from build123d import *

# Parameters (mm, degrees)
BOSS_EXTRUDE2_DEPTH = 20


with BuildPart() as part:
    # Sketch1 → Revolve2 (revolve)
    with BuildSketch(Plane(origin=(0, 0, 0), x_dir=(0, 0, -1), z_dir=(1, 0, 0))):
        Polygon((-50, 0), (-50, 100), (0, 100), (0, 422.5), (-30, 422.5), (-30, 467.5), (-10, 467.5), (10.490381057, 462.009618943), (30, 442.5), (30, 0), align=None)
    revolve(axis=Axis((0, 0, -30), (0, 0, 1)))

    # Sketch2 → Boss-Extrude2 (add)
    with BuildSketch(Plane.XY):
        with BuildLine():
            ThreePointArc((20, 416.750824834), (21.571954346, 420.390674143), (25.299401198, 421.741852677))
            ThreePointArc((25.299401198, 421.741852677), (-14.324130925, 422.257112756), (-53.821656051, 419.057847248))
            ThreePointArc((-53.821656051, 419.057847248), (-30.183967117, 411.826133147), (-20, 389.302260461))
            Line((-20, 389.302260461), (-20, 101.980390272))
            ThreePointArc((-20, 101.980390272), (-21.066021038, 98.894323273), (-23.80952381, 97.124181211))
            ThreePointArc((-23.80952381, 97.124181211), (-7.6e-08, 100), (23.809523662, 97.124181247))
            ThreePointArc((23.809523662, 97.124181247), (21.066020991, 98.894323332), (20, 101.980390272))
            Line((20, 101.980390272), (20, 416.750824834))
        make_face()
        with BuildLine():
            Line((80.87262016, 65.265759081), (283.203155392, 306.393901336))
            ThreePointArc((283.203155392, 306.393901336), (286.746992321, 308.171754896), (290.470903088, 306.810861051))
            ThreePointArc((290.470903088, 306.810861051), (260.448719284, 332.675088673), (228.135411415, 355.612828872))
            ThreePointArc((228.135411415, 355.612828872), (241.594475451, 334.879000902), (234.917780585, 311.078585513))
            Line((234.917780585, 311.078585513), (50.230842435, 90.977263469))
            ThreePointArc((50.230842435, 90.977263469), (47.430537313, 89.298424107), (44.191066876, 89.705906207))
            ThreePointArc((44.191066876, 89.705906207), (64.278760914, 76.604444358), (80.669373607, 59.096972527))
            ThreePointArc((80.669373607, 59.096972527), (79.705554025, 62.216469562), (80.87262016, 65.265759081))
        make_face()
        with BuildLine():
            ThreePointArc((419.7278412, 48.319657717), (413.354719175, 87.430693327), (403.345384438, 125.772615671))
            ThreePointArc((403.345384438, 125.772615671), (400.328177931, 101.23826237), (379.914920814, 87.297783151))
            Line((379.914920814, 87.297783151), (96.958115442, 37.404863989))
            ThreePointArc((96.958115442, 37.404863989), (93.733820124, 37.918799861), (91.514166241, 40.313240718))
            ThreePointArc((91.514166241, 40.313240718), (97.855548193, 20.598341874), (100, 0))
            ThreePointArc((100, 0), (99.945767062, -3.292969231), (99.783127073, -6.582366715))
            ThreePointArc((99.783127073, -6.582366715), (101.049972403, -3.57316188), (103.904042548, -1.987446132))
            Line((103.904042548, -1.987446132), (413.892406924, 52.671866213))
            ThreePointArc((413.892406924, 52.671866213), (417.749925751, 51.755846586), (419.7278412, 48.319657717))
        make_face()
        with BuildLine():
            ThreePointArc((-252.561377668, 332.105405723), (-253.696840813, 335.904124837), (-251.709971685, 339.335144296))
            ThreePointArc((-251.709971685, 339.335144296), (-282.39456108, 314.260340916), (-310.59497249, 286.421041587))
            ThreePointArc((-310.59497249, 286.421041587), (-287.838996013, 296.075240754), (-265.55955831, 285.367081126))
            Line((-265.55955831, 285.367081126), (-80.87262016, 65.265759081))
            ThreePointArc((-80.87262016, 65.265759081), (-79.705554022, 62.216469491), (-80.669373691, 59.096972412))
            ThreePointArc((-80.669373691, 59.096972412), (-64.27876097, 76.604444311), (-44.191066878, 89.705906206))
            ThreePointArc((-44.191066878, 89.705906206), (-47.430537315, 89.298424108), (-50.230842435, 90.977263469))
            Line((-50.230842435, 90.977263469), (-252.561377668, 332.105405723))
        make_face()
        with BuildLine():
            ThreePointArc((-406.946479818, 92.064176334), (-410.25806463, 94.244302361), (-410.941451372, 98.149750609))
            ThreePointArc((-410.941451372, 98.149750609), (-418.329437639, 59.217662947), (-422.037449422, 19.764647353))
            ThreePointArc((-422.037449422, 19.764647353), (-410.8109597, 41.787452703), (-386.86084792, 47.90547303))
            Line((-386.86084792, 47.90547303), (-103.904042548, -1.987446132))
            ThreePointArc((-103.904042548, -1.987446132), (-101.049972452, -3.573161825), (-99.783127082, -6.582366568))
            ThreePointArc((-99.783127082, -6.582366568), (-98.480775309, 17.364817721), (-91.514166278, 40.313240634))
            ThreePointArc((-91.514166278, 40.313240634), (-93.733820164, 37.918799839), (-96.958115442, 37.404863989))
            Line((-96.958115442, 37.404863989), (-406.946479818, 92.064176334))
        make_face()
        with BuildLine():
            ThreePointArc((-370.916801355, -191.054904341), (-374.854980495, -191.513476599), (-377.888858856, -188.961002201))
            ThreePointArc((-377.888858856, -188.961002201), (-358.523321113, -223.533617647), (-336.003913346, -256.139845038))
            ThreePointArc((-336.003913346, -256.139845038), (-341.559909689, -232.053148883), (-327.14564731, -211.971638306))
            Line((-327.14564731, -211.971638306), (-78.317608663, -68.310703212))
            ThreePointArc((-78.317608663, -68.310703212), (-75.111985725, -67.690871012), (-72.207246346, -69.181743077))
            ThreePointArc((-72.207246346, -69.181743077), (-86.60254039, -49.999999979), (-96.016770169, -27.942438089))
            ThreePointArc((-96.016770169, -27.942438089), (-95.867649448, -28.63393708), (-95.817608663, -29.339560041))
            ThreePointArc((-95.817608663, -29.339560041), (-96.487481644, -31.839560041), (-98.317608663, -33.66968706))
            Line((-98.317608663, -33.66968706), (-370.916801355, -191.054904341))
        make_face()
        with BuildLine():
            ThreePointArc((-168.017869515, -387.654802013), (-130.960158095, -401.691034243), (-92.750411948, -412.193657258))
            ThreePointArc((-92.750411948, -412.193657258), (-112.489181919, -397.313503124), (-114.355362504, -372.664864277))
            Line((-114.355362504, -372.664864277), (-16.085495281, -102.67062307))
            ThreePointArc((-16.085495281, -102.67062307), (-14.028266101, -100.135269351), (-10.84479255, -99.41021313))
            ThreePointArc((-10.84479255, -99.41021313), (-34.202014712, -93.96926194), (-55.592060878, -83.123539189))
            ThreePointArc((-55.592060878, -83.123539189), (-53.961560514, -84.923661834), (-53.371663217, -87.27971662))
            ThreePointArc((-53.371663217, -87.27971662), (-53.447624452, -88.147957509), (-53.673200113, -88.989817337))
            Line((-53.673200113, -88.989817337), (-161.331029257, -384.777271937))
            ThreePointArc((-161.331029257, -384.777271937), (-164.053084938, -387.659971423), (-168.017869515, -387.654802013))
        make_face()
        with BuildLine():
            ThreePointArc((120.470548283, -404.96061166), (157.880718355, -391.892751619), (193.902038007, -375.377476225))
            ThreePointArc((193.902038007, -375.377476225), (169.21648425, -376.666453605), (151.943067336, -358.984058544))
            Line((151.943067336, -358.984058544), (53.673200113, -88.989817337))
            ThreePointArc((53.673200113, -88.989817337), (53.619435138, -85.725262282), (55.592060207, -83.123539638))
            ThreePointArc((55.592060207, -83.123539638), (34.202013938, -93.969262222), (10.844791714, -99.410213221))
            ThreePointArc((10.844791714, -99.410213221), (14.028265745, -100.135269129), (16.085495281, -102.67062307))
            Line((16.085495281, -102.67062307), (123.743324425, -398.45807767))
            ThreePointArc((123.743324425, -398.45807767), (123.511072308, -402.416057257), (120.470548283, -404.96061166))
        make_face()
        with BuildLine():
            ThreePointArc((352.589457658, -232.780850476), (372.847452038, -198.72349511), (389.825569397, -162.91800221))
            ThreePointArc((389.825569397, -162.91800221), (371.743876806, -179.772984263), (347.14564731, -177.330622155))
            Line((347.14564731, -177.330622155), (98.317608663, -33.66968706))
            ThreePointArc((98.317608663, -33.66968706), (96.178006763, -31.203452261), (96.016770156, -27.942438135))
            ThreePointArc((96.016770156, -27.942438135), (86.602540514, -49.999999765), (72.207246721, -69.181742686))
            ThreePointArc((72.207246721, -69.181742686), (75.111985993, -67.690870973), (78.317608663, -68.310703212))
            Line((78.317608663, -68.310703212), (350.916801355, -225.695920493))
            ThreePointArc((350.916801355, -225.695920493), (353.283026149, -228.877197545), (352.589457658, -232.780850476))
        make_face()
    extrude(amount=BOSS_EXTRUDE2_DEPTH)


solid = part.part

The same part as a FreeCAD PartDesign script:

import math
import FreeCAD as App
import Part
import Sketcher
from FreeCAD import Vector
Q = App.Units.Quantity


def add_polygon(sketch, points):
    """Adds a closed chain of lines whose ends are joined by coincident constraints."""
    first, n = sketch.GeometryCount, len(points)
    for a, b in zip(points, points[1:] + points[:1]):
        sketch.addGeometry(Part.LineSegment(App.Vector(*a, 0), App.Vector(*b, 0)), False)
    for i in range(n):
        sketch.addConstraint(Sketcher.Constraint("Coincident", first + i, 2, first + (i + 1) % n, 1))

doc = App.newDocument("Part")
body = doc.addObject("PartDesign::Body", "Body")

sketch1 = doc.addObject("Sketcher::SketchObject", "Sketch")
body.addObject(sketch1)
sketch1.AttachmentSupport = (doc.YZ_Plane, [""])
sketch1.MapMode = "FlatFace"
add_polygon(sketch1, [(100, 50), (0, 50), (0, -30), (442, -30), (462, -10), (468, 10), (468, 30), (422, 30), (422, 0), (100, 0)])
sketch1.addConstraint(Sketcher.Constraint("Horizontal", 0))
sketch1.addConstraint(Sketcher.Constraint("Vertical", 1))
sketch1.addConstraint(Sketcher.Constraint("Horizontal", 2))
sketch1.addConstraint(Sketcher.Constraint("Vertical", 5))
sketch1.addConstraint(Sketcher.Constraint("Horizontal", 6))
sketch1.addConstraint(Sketcher.Constraint("Vertical", 7))
sketch1.addConstraint(Sketcher.Constraint("Horizontal", 8))
sketch1.addConstraint(Sketcher.Constraint("Vertical", 9))
sketch1.addConstraint(Sketcher.Constraint("PointOnObject", 0, 2, -2))
sketch1.addConstraint(Sketcher.Constraint("PointOnObject", 7, 2, -1))
sketch1.addConstraint(Sketcher.Constraint("DistanceX", 0, 2, 0, 1, Q("100 mm")))
sketch1.addConstraint(Sketcher.Constraint("DistanceX", 6, 2, 6, 1, Q("45 mm")))
sketch1.addConstraint(Sketcher.Constraint("DistanceY", 1, 2, 1, 1, Q("80 mm")))
sketch1.addConstraint(Sketcher.Constraint("DistanceY", 5, 1, 5, 2, Q("20 mm")))
sketch1.addConstraint(Sketcher.Constraint("DistanceY", 7, 2, 7, 1, Q("30 mm")))
sketch1.addConstraint(Sketcher.Constraint("DistanceY", 9, 1, 9, 2, Q("50 mm")))
sketch1.addConstraint(Sketcher.Constraint("Angle", 3, Q("45 deg")))
sketch1.addConstraint(Sketcher.Constraint("Angle", 4, Q("75 deg")))
sketch1.addConstraint(Sketcher.Constraint("DistanceX", 2, 1, 2, 2, Q("442.5 mm")))
sketch1.addConstraint(Sketcher.Constraint("DistanceX", 8, 2, 8, 1, Q("322.5 mm")))
revolution = doc.addObject("PartDesign::Revolution", "Revolution")
body.addObject(revolution)
revolution.Profile = sketch1
revolution.ReferenceAxis = (sketch1, ["V_Axis"])
revolution.Angle = 360

sketch2 = doc.addObject("Sketcher::SketchObject", "Sketch001")
body.addObject(sketch2)
sketch2.AttachmentSupport = (doc.XY_Plane, [""])
sketch2.MapMode = "FlatFace"
sketch2.addGeometry(Part.ArcOfCircle(Part.Circle(Vector(25, 416.8, 0), Vector(0, 0, 1), 5), math.radians(87), math.radians(180)), False)
sketch2.addGeometry(Part.ArcOfCircle(Part.Circle(Vector(0, 0, 0), Vector(0, 0, 1), 422.5), math.radians(86.57), math.radians(97.32)), False)
sketch2.addGeometry(Part.ArcOfCircle(Part.Circle(Vector(-50, 389.3, 0), Vector(0, 0, 1), 30), math.radians(0), math.radians(97)), False)
sketch2.addGeometry(Part.LineSegment(Vector(-20, 389.3, 0), Vector(-20, 102, 0)), False)
sketch2.addGeometry(Part.ArcOfCircle(Part.Circle(Vector(-25, 102, 0), Vector(0, 0, 1), 5), math.radians(-76), math.radians(0)), False)
sketch2.addGeometry(Part.ArcOfCircle(Part.Circle(Vector(0, 0, 0), Vector(0, 0, 1), 100), math.radians(76), math.radians(104)), False)
sketch2.addGeometry(Part.ArcOfCircle(Part.Circle(Vector(25, 102, 0), Vector(0, 0, 1), 5), math.radians(180), math.radians(256)), False)
sketch2.addGeometry(Part.LineSegment(Vector(20, 102, 0), Vector(20, 416.8, 0)), False)
sketch2.addGeometry(Part.LineSegment(Vector(80.9, 65.3, 0), Vector(283.2, 306.4, 0)), False)
sketch2.addGeometry(Part.ArcOfCircle(Part.Circle(Vector(287, 303.2, 0), Vector(0, 0, 1), 5), math.radians(47), math.radians(140)), False)
sketch2.addGeometry(Part.ArcOfCircle(Part.Circle(Vector(0, 0, 0), Vector(0, 0, 1), 422.5), math.radians(46.57), math.radians(57.32)), False)
sketch2.addGeometry(Part.ArcOfCircle(Part.Circle(Vector(211.9, 330.4, 0), Vector(0, 0, 1), 30), math.radians(-40), math.radians(57)), False)
sketch2.addGeometry(Part.LineSegment(Vector(234.9, 311.1, 0), Vector(50.2, 91, 0)), False)
sketch2.addGeometry(Part.ArcOfCircle(Part.Circle(Vector(46.4, 94.2, 0), Vector(0, 0, 1), 5), math.radians(-116), math.radians(-40)), False)
sketch2.addGeometry(Part.ArcOfCircle(Part.Circle(Vector(0, 0, 0), Vector(0, 0, 1), 100), math.radians(36), math.radians(64)), False)
sketch2.addGeometry(Part.ArcOfCircle(Part.Circle(Vector(84.7, 62.1, 0), Vector(0, 0, 1), 5), math.radians(140), math.radians(216)), False)
sketch2.addGeometry(Part.ArcOfCircle(Part.Circle(Vector(0, 0, 0), Vector(0, 0, 1), 422.5), math.radians(6.57), math.radians(17.32)), False)
sketch2.addGeometry(Part.ArcOfCircle(Part.Circle(Vector(374.7, 116.8, 0), Vector(0, 0, 1), 30), math.radians(-80), math.radians(17)), False)
sketch2.addGeometry(Part.LineSegment(Vector(379.9, 87.3, 0), Vector(97, 37.4, 0)), False)
sketch2.addGeometry(Part.ArcOfCircle(Part.Circle(Vector(96.1, 42.3, 0), Vector(0, 0, 1), 5), math.radians(-156), math.radians(-80)), False)
sketch2.addGeometry(Part.ArcOfCircle(Part.Circle(Vector(0, 0, 0), Vector(0, 0, 1), 100), math.radians(0), math.radians(24)), False)
sketch2.addGeometry(Part.ArcOfCircle(Part.Circle(Vector(0, 0, 0), Vector(0, 0, 1), 100), math.radians(-3.77), math.radians(0)), False)
sketch2.addGeometry(Part.ArcOfCircle(Part.Circle(Vector(104.8, -6.9, 0), Vector(0, 0, 1), 5), math.radians(100), math.radians(176)), False)
sketch2.addGeometry(Part.LineSegment(Vector(103.9, -2, 0), Vector(413.9, 52.7, 0)), False)
sketch2.addGeometry(Part.ArcOfCircle(Part.Circle(Vector(414.8, 47.7, 0), Vector(0, 0, 1), 5), math.radians(7), math.radians(100)), False)
sketch2.addGeometry(Part.ArcOfCircle(Part.Circle(Vector(-248.7, 335.3, 0), Vector(0, 0, 1), 5), math.radians(127), math.radians(220)), False)
sketch2.addGeometry(Part.ArcOfCircle(Part.Circle(Vector(0, 0, 0), Vector(0, 0, 1), 422.5), math.radians(126.57), math.radians(137.32)), False)
sketch2.addGeometry(Part.ArcOfCircle(Part.Circle(Vector(-288.5, 266.1, 0), Vector(0, 0, 1), 30), math.radians(40), math.radians(137)), False)
sketch2.addGeometry(Part.LineSegment(Vector(-265.6, 285.4, 0), Vector(-80.9, 65.3, 0)), False)
sketch2.addGeometry(Part.ArcOfCircle(Part.Circle(Vector(-84.7, 62.1, 0), Vector(0, 0, 1), 5), math.radians(-36), math.radians(40)), False)
sketch2.addGeometry(Part.ArcOfCircle(Part.Circle(Vector(0, 0, 0), Vector(0, 0, 1), 100), math.radians(116), math.radians(144)), False)
sketch2.addGeometry(Part.ArcOfCircle(Part.Circle(Vector(-46.4, 94.2, 0), Vector(0, 0, 1), 5), math.radians(-140), math.radians(-64)), False)
sketch2.addGeometry(Part.LineSegment(Vector(-50.2, 91, 0), Vector(-252.6, 332.1, 0)), False)
sketch2.addGeometry(Part.ArcOfCircle(Part.Circle(Vector(-406.1, 97, 0), Vector(0, 0, 1), 5), math.radians(167), math.radians(260)), False)
sketch2.addGeometry(Part.ArcOfCircle(Part.Circle(Vector(0, 0, 0), Vector(0, 0, 1), 422.5), math.radians(166.57), math.radians(177.32)), False)
sketch2.addGeometry(Part.ArcOfCircle(Part.Circle(Vector(-392.1, 18.4, 0), Vector(0, 0, 1), 30), math.radians(80), math.radians(177)), False)
sketch2.addGeometry(Part.LineSegment(Vector(-386.9, 47.9, 0), Vector(-103.9, -2, 0)), False)
sketch2.addGeometry(Part.ArcOfCircle(Part.Circle(Vector(-104.8, -6.9, 0), Vector(0, 0, 1), 5), math.radians(4), math.radians(80)), False)
sketch2.addGeometry(Part.ArcOfCircle(Part.Circle(Vector(0, 0, 0), Vector(0, 0, 1), 100), math.radians(156), math.radians(184)), False)
sketch2.addGeometry(Part.ArcOfCircle(Part.Circle(Vector(-96.1, 42.3, 0), Vector(0, 0, 1), 5), math.radians(-100), math.radians(-24)), False)
sketch2.addGeometry(Part.LineSegment(Vector(-97, 37.4, 0), Vector(-406.9, 92.1, 0)), False)
sketch2.addGeometry(Part.ArcOfCircle(Part.Circle(Vector(-373.4, -186.7, 0), Vector(0, 0, 1), 5), math.radians(-153), math.radians(-60)), False)
sketch2.addGeometry(Part.ArcOfCircle(Part.Circle(Vector(0, 0, 0), Vector(0, 0, 1), 422.5), math.radians(-153.43), math.radians(-142.68)), False)
sketch2.addGeometry(Part.ArcOfCircle(Part.Circle(Vector(-312.1, -238, 0), Vector(0, 0, 1), 30), math.radians(120), math.radians(217)), False)
sketch2.addGeometry(Part.LineSegment(Vector(-327.1, -212, 0), Vector(-78.3, -68.3, 0)), False)
sketch2.addGeometry(Part.ArcOfCircle(Part.Circle(Vector(-75.8, -72.6, 0), Vector(0, 0, 1), 5), math.radians(44), math.radians(120)), False)
sketch2.addGeometry(Part.ArcOfCircle(Part.Circle(Vector(0, 0, 0), Vector(0, 0, 1), 100), math.radians(-164), math.radians(-136)), False)
sketch2.addGeometry(Part.ArcOfCircle(Part.Circle(Vector(-100.8, -29.3, 0), Vector(0, 0, 1), 5), math.radians(0), math.radians(16.23)), False)
sketch2.addGeometry(Part.ArcOfCircle(Part.Circle(Vector(-100.8, -29.3, 0), Vector(0, 0, 1), 5), math.radians(-60), math.radians(0)), False)
sketch2.addGeometry(Part.LineSegment(Vector(-98.3, -33.7, 0), Vector(-370.9, -191.1, 0)), False)
sketch2.addGeometry(Part.ArcOfCircle(Part.Circle(Vector(0, 0, 0), Vector(0, 0, 1), 422.5), math.radians(-113.43), math.radians(-102.68)), False)
sketch2.addGeometry(Part.ArcOfCircle(Part.Circle(Vector(-86.2, -382.9, 0), Vector(0, 0, 1), 30), math.radians(160), math.radians(257)), False)
sketch2.addGeometry(Part.LineSegment(Vector(-114.4, -372.7, 0), Vector(-16.1, -102.7, 0)), False)
sketch2.addGeometry(Part.ArcOfCircle(Part.Circle(Vector(-11.4, -104.4, 0), Vector(0, 0, 1), 5), math.radians(84), math.radians(160)), False)
sketch2.addGeometry(Part.ArcOfCircle(Part.Circle(Vector(0, 0, 0), Vector(0, 0, 1), 100), math.radians(-124), math.radians(-96)), False)
sketch2.addGeometry(Part.ArcOfCircle(Part.Circle(Vector(-58.4, -87.3, 0), Vector(0, 0, 1), 5), math.radians(0), math.radians(56)), False)
sketch2.addGeometry(Part.ArcOfCircle(Part.Circle(Vector(-58.4, -87.3, 0), Vector(0, 0, 1), 5), math.radians(-20), math.radians(0)), False)
sketch2.addGeometry(Part.LineSegment(Vector(-53.7, -89, 0), Vector(-161.3, -384.8, 0)), False)
sketch2.addGeometry(Part.ArcOfCircle(Part.Circle(Vector(-166, -383.1, 0), Vector(0, 0, 1), 5), math.radians(-113), math.radians(-20)), False)
sketch2.addGeometry(Part.ArcOfCircle(Part.Circle(Vector(0, 0, 0), Vector(0, 0, 1), 422.5), math.radians(-73.43), math.radians(-62.68)), False)
sketch2.addGeometry(Part.ArcOfCircle(Part.Circle(Vector(180.1, -348.7, 0), Vector(0, 0, 1), 30), math.radians(-160), math.radians(-63)), False)
sketch2.addGeometry(Part.LineSegment(Vector(151.9, -359, 0), Vector(53.7, -89, 0)), False)
sketch2.addGeometry(Part.ArcOfCircle(Part.Circle(Vector(58.4, -87.3, 0), Vector(0, 0, 1), 5), math.radians(124), math.radians(200)), False)
sketch2.addGeometry(Part.ArcOfCircle(Part.Circle(Vector(0, 0, 0), Vector(0, 0, 1), 100), math.radians(-84), math.radians(-56)), False)
sketch2.addGeometry(Part.ArcOfCircle(Part.Circle(Vector(11.4, -104.4, 0), Vector(0, 0, 1), 5), math.radians(20), math.radians(96)), False)
sketch2.addGeometry(Part.LineSegment(Vector(16.1, -102.7, 0), Vector(123.7, -398.5, 0)), False)
sketch2.addGeometry(Part.ArcOfCircle(Part.Circle(Vector(119, -400.2, 0), Vector(0, 0, 1), 5), math.radians(-73), math.radians(20)), False)
sketch2.addGeometry(Part.ArcOfCircle(Part.Circle(Vector(0, 0, 0), Vector(0, 0, 1), 422.5), math.radians(-33.43), math.radians(-22.68)), False)
sketch2.addGeometry(Part.ArcOfCircle(Part.Circle(Vector(362.1, -151.3, 0), Vector(0, 0, 1), 30), math.radians(-120), math.radians(-23)), False)
sketch2.addGeometry(Part.LineSegment(Vector(347.1, -177.3, 0), Vector(98.3, -33.7, 0)), False)
sketch2.addGeometry(Part.ArcOfCircle(Part.Circle(Vector(100.8, -29.3, 0), Vector(0, 0, 1), 5), math.radians(164), math.radians(240)), False)
sketch2.addGeometry(Part.ArcOfCircle(Part.Circle(Vector(0, 0, 0), Vector(0, 0, 1), 100), math.radians(-44), math.radians(-16)), False)
sketch2.addGeometry(Part.ArcOfCircle(Part.Circle(Vector(75.8, -72.6, 0), Vector(0, 0, 1), 5), math.radians(60), math.radians(136)), False)
sketch2.addGeometry(Part.LineSegment(Vector(78.3, -68.3, 0), Vector(350.9, -225.7, 0)), False)
sketch2.addGeometry(Part.ArcOfCircle(Part.Circle(Vector(348.4, -230, 0), Vector(0, 0, 1), 5), math.radians(-33), math.radians(60)), False)
sketch2.addConstraint(Sketcher.Constraint("Tangent", 0, 1, 1, 1))
sketch2.addConstraint(Sketcher.Constraint("Tangent", 1, 2, 2, 2))
sketch2.addConstraint(Sketcher.Constraint("Tangent", 2, 1, 3, 1))
sketch2.addConstraint(Sketcher.Constraint("Tangent", 3, 2, 4, 2))
sketch2.addConstraint(Sketcher.Constraint("Tangent", 4, 1, 5, 2))
sketch2.addConstraint(Sketcher.Constraint("Tangent", 5, 1, 6, 2))
sketch2.addConstraint(Sketcher.Constraint("Tangent", 6, 1, 7, 1))
sketch2.addConstraint(Sketcher.Constraint("Tangent", 7, 2, 0, 2))
sketch2.addConstraint(Sketcher.Constraint("Tangent", 8, 2, 9, 2))
sketch2.addConstraint(Sketcher.Constraint("Tangent", 9, 1, 10, 1))
sketch2.addConstraint(Sketcher.Constraint("Tangent", 10, 2, 11, 2))
sketch2.addConstraint(Sketcher.Constraint("Tangent", 11, 1, 12, 1))
sketch2.addConstraint(Sketcher.Constraint("Tangent", 12, 2, 13, 2))
sketch2.addConstraint(Sketcher.Constraint("Tangent", 13, 1, 14, 2))
sketch2.addConstraint(Sketcher.Constraint("Tangent", 14, 1, 15, 2))
sketch2.addConstraint(Sketcher.Constraint("Tangent", 15, 1, 8, 1))
sketch2.addConstraint(Sketcher.Constraint("Tangent", 16, 2, 17, 2))
sketch2.addConstraint(Sketcher.Constraint("Tangent", 17, 1, 18, 1))
sketch2.addConstraint(Sketcher.Constraint("Tangent", 18, 2, 19, 2))
sketch2.addConstraint(Sketcher.Constraint("Tangent", 19, 1, 20, 2))
sketch2.addConstraint(Sketcher.Constraint("Tangent", 20, 1, 21, 2))
sketch2.addConstraint(Sketcher.Constraint("Tangent", 21, 1, 22, 2))
sketch2.addConstraint(Sketcher.Constraint("Tangent", 22, 1, 23, 1))
sketch2.addConstraint(Sketcher.Constraint("Tangent", 23, 2, 24, 2))
sketch2.addConstraint(Sketcher.Constraint("Tangent", 24, 1, 16, 1))
sketch2.addConstraint(Sketcher.Constraint("Tangent", 25, 1, 26, 1))
sketch2.addConstraint(Sketcher.Constraint("Tangent", 26, 2, 27, 2))
sketch2.addConstraint(Sketcher.Constraint("Tangent", 27, 1, 28, 1))
sketch2.addConstraint(Sketcher.Constraint("Tangent", 28, 2, 29, 2))
sketch2.addConstraint(Sketcher.Constraint("Tangent", 29, 1, 30, 2))
sketch2.addConstraint(Sketcher.Constraint("Tangent", 30, 1, 31, 2))
sketch2.addConstraint(Sketcher.Constraint("Tangent", 31, 1, 32, 1))
sketch2.addConstraint(Sketcher.Constraint("Tangent", 32, 2, 25, 2))
sketch2.addConstraint(Sketcher.Constraint("Tangent", 33, 1, 34, 1))
sketch2.addConstraint(Sketcher.Constraint("Tangent", 34, 2, 35, 2))
sketch2.addConstraint(Sketcher.Constraint("Tangent", 35, 1, 36, 1))
sketch2.addConstraint(Sketcher.Constraint("Tangent", 36, 2, 37, 2))
sketch2.addConstraint(Sketcher.Constraint("Tangent", 37, 1, 38, 2))
sketch2.addConstraint(Sketcher.Constraint("Tangent", 38, 1, 39, 2))
sketch2.addConstraint(Sketcher.Constraint("Tangent", 39, 1, 40, 1))
sketch2.addConstraint(Sketcher.Constraint("Tangent", 40, 2, 33, 2))
sketch2.addConstraint(Sketcher.Constraint("Tangent", 41, 1, 42, 1))
sketch2.addConstraint(Sketcher.Constraint("Tangent", 42, 2, 43, 2))
sketch2.addConstraint(Sketcher.Constraint("Tangent", 43, 1, 44, 1))
sketch2.addConstraint(Sketcher.Constraint("Tangent", 44, 2, 45, 2))
sketch2.addConstraint(Sketcher.Constraint("Tangent", 45, 1, 46, 2))
sketch2.addConstraint(Sketcher.Constraint("Tangent", 46, 1, 47, 2))
sketch2.addConstraint(Sketcher.Constraint("Tangent", 47, 1, 48, 2))
sketch2.addConstraint(Sketcher.Constraint("Tangent", 48, 1, 49, 1))
sketch2.addConstraint(Sketcher.Constraint("Tangent", 49, 2, 41, 2))
sketch2.addConstraint(Sketcher.Constraint("Tangent", 50, 2, 51, 2))
sketch2.addConstraint(Sketcher.Constraint("Tangent", 51, 1, 52, 1))
sketch2.addConstraint(Sketcher.Constraint("Tangent", 52, 2, 53, 2))
sketch2.addConstraint(Sketcher.Constraint("Tangent", 53, 1, 54, 2))
sketch2.addConstraint(Sketcher.Constraint("Tangent", 54, 1, 55, 2))
sketch2.addConstraint(Sketcher.Constraint("Tangent", 55, 1, 56, 2))
sketch2.addConstraint(Sketcher.Constraint("Tangent", 56, 1, 57, 1))
sketch2.addConstraint(Sketcher.Constraint("Tangent", 57, 2, 58, 2))
sketch2.addConstraint(Sketcher.Constraint("Tangent", 58, 1, 50, 1))
sketch2.addConstraint(Sketcher.Constraint("Tangent", 59, 2, 60, 2))
sketch2.addConstraint(Sketcher.Constraint("Tangent", 60, 1, 61, 1))
sketch2.addConstraint(Sketcher.Constraint("Tangent", 61, 2, 62, 2))
sketch2.addConstraint(Sketcher.Constraint("Tangent", 62, 1, 63, 2))
sketch2.addConstraint(Sketcher.Constraint("Tangent", 63, 1, 64, 2))
sketch2.addConstraint(Sketcher.Constraint("Tangent", 64, 1, 65, 1))
sketch2.addConstraint(Sketcher.Constraint("Tangent", 65, 2, 66, 2))
sketch2.addConstraint(Sketcher.Constraint("Tangent", 66, 1, 59, 1))
sketch2.addConstraint(Sketcher.Constraint("Tangent", 67, 2, 68, 2))
sketch2.addConstraint(Sketcher.Constraint("Tangent", 68, 1, 69, 1))
sketch2.addConstraint(Sketcher.Constraint("Tangent", 69, 2, 70, 2))
sketch2.addConstraint(Sketcher.Constraint("Tangent", 70, 1, 71, 2))
sketch2.addConstraint(Sketcher.Constraint("Tangent", 71, 1, 72, 2))
sketch2.addConstraint(Sketcher.Constraint("Tangent", 72, 1, 73, 1))
sketch2.addConstraint(Sketcher.Constraint("Tangent", 73, 2, 74, 2))
sketch2.addConstraint(Sketcher.Constraint("Tangent", 74, 1, 67, 1))
sketch2.addConstraint(Sketcher.Constraint("Vertical", 3))
sketch2.addConstraint(Sketcher.Constraint("Vertical", 7))
sketch2.addConstraint(Sketcher.Constraint("Coincident", 1, 3, -1, 1))
sketch2.addConstraint(Sketcher.Constraint("Coincident", 5, 3, -1, 1))
sketch2.addConstraint(Sketcher.Constraint("Coincident", 10, 3, -1, 1))
sketch2.addConstraint(Sketcher.Constraint("Coincident", 14, 3, -1, 1))
sketch2.addConstraint(Sketcher.Constraint("Coincident", 16, 3, -1, 1))
sketch2.addConstraint(Sketcher.Constraint("Coincident", 20, 3, -1, 1))
sketch2.addConstraint(Sketcher.Constraint("Coincident", 26, 3, -1, 1))
sketch2.addConstraint(Sketcher.Constraint("Coincident", 30, 3, -1, 1))
sketch2.addConstraint(Sketcher.Constraint("Coincident", 34, 3, -1, 1))
sketch2.addConstraint(Sketcher.Constraint("Coincident", 38, 3, -1, 1))
sketch2.addConstraint(Sketcher.Constraint("Coincident", 42, 3, -1, 1))
sketch2.addConstraint(Sketcher.Constraint("Coincident", 46, 3, -1, 1))
sketch2.addConstraint(Sketcher.Constraint("Coincident", 50, 3, -1, 1))
sketch2.addConstraint(Sketcher.Constraint("Coincident", 54, 3, -1, 1))
sketch2.addConstraint(Sketcher.Constraint("Coincident", 59, 3, -1, 1))
sketch2.addConstraint(Sketcher.Constraint("Coincident", 63, 3, -1, 1))
sketch2.addConstraint(Sketcher.Constraint("Coincident", 67, 3, -1, 1))
sketch2.addConstraint(Sketcher.Constraint("Coincident", 71, 3, -1, 1))
sketch2.addConstraint(Sketcher.Constraint("Equal", 0, 4))
sketch2.addConstraint(Sketcher.Constraint("Equal", 4, 6))
sketch2.addConstraint(Sketcher.Constraint("Equal", 6, 9))
sketch2.addConstraint(Sketcher.Constraint("Equal", 1, 10))
sketch2.addConstraint(Sketcher.Constraint("Equal", 2, 11))
sketch2.addConstraint(Sketcher.Constraint("Equal", 9, 13))
sketch2.addConstraint(Sketcher.Constraint("Equal", 5, 14))
sketch2.addConstraint(Sketcher.Constraint("Equal", 13, 15))
sketch2.addConstraint(Sketcher.Constraint("Equal", 10, 16))
sketch2.addConstraint(Sketcher.Constraint("Equal", 11, 17))
sketch2.addConstraint(Sketcher.Constraint("Equal", 15, 19))
sketch2.addConstraint(Sketcher.Constraint("Equal", 14, 20))
sketch2.addConstraint(Sketcher.Constraint("Equal", 20, 21))
sketch2.addConstraint(Sketcher.Constraint("Equal", 19, 22))
sketch2.addConstraint(Sketcher.Constraint("Equal", 22, 24))
sketch2.addConstraint(Sketcher.Constraint("Equal", 24, 25))
sketch2.addConstraint(Sketcher.Constraint("Equal", 16, 26))
sketch2.addConstraint(Sketcher.Constraint("Equal", 17, 27))
sketch2.addConstraint(Sketcher.Constraint("Equal", 25, 29))
sketch2.addConstraint(Sketcher.Constraint("Equal", 21, 30))
sketch2.addConstraint(Sketcher.Constraint("Equal", 29, 31))
sketch2.addConstraint(Sketcher.Constraint("Equal", 31, 33))
sketch2.addConstraint(Sketcher.Constraint("Equal", 26, 34))
sketch2.addConstraint(Sketcher.Constraint("Equal", 27, 35))
sketch2.addConstraint(Sketcher.Constraint("Equal", 33, 37))
sketch2.addConstraint(Sketcher.Constraint("Equal", 30, 38))
sketch2.addConstraint(Sketcher.Constraint("Equal", 37, 39))
sketch2.addConstraint(Sketcher.Constraint("Equal", 39, 41))
sketch2.addConstraint(Sketcher.Constraint("Equal", 34, 42))
sketch2.addConstraint(Sketcher.Constraint("Equal", 35, 43))
sketch2.addConstraint(Sketcher.Constraint("Equal", 41, 45))
sketch2.addConstraint(Sketcher.Constraint("Equal", 38, 46))
sketch2.addConstraint(Sketcher.Constraint("Equal", 45, 47))
sketch2.addConstraint(Sketcher.Constraint("Equal", 47, 48))
sketch2.addConstraint(Sketcher.Constraint("Equal", 42, 50))
sketch2.addConstraint(Sketcher.Constraint("Equal", 43, 51))
sketch2.addConstraint(Sketcher.Constraint("Equal", 48, 53))
sketch2.addConstraint(Sketcher.Constraint("Equal", 46, 54))
sketch2.addConstraint(Sketcher.Constraint("Equal", 53, 55))
sketch2.addConstraint(Sketcher.Constraint("Equal", 55, 56))
sketch2.addConstraint(Sketcher.Constraint("Equal", 56, 58))
sketch2.addConstraint(Sketcher.Constraint("Equal", 50, 59))
sketch2.addConstraint(Sketcher.Constraint("Equal", 51, 60))
sketch2.addConstraint(Sketcher.Constraint("Equal", 58, 62))
sketch2.addConstraint(Sketcher.Constraint("Equal", 54, 63))
sketch2.addConstraint(Sketcher.Constraint("Equal", 62, 64))
sketch2.addConstraint(Sketcher.Constraint("Equal", 64, 66))
sketch2.addConstraint(Sketcher.Constraint("Equal", 59, 67))
sketch2.addConstraint(Sketcher.Constraint("Equal", 60, 68))
sketch2.addConstraint(Sketcher.Constraint("Equal", 66, 70))
sketch2.addConstraint(Sketcher.Constraint("Equal", 63, 71))
sketch2.addConstraint(Sketcher.Constraint("Equal", 70, 72))
sketch2.addConstraint(Sketcher.Constraint("Equal", 72, 74))
sketch2.addConstraint(Sketcher.Constraint("Symmetric", 15, 1, 28, 2, -2))
sketch2.addConstraint(Sketcher.Constraint("Symmetric", 12, 2, 31, 1, -2))
sketch2.addConstraint(Sketcher.Constraint("Symmetric", 22, 1, 36, 2, -2))
sketch2.addConstraint(Sketcher.Constraint("Symmetric", 18, 2, 39, 1, -2))
sketch2.addConstraint(Sketcher.Constraint("Symmetric", 56, 1, 61, 2, -2))
sketch2.addConstraint(Sketcher.Constraint("Symmetric", 52, 2, 64, 1, -2))
sketch2.addConstraint(Sketcher.Constraint("Symmetric", 48, 1, 69, 2, -2))
sketch2.addConstraint(Sketcher.Constraint("Symmetric", 44, 2, 72, 1, -2))
sketch2.addConstraint(Sketcher.Constraint("PointOnObject", 20, 1, -1))
sketch2.addConstraint(Sketcher.Constraint("Parallel", 8, 12))
sketch2.addConstraint(Sketcher.Constraint("Parallel", 18, 23))
sketch2.addConstraint(Sketcher.Constraint("Parallel", 44, 49))
sketch2.addConstraint(Sketcher.Constraint("Parallel", 52, 57))
sketch2.addConstraint(Sketcher.Constraint("Horizontal", 4, 3, 6, 3))
sketch2.addConstraint(Sketcher.Constraint("Horizontal", 70, 3, 47, 1))
sketch2.addConstraint(Sketcher.Constraint("Horizontal", 62, 3, 55, 1))
sketch2.addConstraint(Sketcher.Constraint("Equal", 12, 18))
sketch2.addConstraint(Sketcher.Constraint("Equal", 8, 23))
sketch2.addConstraint(Sketcher.Constraint("Equal", 18, 28))
sketch2.addConstraint(Sketcher.Constraint("Equal", 36, 44))
sketch2.addConstraint(Sketcher.Constraint("Equal", 40, 49))
sketch2.addConstraint(Sketcher.Constraint("Equal", 44, 52))
sketch2.addConstraint(Sketcher.Constraint("Equal", 49, 57))
sketch2.addConstraint(Sketcher.Constraint("Radius", 0, Q("5 mm")))
sketch2.addConstraint(Sketcher.Constraint("Radius", 2, Q("30 mm")))
sketch2.addConstraint(Sketcher.Constraint("Radius", 5, Q("100 mm")))
sketch2.addConstraint(Sketcher.Constraint("Radius", 1, Q("422.5 mm")))
sketch2.addConstraint(Sketcher.Constraint("Angle", 8, Q("50 deg")))
sketch2.addConstraint(Sketcher.Constraint("Angle", 18, Q("-170 deg")))
sketch2.addConstraint(Sketcher.Constraint("Angle", 44, Q("30 deg")))
sketch2.addConstraint(Sketcher.Constraint("Angle", 52, Q("70 deg")))
sketch2.addConstraint(Sketcher.Constraint("DistanceX", -1, 1, 0, 3, Q("25 mm")))
sketch2.addConstraint(Sketcher.Constraint("DistanceY", -1, 1, 13, 3, Q("94.191202 mm")))
pad1 = doc.addObject("PartDesign::Pad", "Pad")
body.addObject(pad1)
pad1.Profile = sketch2
pad1.Length = 20

doc.recompute()
